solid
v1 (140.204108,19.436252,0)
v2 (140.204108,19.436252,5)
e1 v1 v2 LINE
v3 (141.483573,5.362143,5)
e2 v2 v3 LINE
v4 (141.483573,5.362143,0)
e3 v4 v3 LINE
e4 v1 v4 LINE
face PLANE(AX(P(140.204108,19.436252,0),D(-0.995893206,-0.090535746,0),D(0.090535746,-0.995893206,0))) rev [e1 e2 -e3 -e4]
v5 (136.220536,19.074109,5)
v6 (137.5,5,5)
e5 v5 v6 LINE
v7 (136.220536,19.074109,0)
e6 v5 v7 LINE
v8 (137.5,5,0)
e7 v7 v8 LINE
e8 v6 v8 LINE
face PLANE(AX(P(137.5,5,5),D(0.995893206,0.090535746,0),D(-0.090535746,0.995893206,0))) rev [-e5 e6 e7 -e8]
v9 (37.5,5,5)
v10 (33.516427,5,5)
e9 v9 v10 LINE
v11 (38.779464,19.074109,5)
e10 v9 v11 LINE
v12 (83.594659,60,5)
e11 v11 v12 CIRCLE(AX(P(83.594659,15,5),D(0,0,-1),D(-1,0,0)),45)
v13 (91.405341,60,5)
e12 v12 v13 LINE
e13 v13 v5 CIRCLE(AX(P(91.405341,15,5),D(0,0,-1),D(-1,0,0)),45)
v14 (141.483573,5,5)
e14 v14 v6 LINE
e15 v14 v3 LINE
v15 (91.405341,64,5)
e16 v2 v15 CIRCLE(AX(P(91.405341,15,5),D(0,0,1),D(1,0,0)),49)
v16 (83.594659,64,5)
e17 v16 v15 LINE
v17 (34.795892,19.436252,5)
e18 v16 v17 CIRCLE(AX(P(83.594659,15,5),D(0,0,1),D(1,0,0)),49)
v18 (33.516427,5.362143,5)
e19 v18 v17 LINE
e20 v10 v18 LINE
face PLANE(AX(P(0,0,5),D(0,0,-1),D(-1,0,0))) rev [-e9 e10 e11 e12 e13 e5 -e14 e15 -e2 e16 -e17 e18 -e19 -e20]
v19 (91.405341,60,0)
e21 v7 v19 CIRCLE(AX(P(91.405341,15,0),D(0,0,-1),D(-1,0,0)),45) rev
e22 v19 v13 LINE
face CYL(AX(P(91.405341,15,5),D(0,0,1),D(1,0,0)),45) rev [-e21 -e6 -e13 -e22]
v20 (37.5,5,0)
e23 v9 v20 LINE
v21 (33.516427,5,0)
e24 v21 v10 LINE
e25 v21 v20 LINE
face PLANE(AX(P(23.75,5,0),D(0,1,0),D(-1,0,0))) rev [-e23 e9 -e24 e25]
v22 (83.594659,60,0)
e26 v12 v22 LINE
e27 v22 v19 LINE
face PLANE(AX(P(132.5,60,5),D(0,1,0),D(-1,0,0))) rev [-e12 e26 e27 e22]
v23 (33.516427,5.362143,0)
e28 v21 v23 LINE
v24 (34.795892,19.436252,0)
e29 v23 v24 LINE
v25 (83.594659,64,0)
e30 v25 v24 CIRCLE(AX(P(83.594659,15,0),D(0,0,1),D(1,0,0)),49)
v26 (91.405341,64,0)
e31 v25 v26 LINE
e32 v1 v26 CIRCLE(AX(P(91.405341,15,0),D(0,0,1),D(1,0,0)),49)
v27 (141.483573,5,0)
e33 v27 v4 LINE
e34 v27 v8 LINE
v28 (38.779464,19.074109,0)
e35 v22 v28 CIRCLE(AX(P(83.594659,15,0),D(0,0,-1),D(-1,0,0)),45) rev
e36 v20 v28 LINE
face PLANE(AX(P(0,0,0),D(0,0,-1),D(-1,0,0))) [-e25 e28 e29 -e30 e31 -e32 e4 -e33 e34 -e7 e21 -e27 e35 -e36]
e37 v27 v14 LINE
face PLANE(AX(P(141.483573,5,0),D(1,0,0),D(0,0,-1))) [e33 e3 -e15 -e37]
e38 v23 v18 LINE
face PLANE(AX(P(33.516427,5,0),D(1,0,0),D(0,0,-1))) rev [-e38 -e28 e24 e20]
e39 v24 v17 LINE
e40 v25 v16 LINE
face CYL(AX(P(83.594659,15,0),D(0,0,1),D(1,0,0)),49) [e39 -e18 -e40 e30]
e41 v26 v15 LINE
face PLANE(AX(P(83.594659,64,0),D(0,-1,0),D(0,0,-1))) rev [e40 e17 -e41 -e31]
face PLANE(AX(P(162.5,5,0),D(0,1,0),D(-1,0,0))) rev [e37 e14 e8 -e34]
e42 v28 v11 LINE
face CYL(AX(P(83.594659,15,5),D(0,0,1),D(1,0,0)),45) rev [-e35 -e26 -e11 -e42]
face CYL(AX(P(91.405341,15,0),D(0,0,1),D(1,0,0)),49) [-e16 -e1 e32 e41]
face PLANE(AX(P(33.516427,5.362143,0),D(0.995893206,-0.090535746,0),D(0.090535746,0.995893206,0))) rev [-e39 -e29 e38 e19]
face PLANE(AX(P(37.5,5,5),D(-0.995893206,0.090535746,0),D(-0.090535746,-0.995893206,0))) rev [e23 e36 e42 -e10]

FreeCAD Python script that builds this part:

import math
import FreeCAD as App
import Part
import Sketcher
from FreeCAD import Vector
Q = App.Units.Quantity


def edges_at(feature, points):
    """Names of the edges that pass closest to the given points."""
    edges = feature.Shape.Edges
    near = lambda p: min(range(len(edges)), key=lambda i: edges[i].distToShape(Part.Vertex(*p))[0])
    return sorted({f"Edge{near(p) + 1}" for p in points})

doc = App.newDocument("Part")
params = doc.addObject("Spreadsheet::Sheet", "Params")
for row, (alias, value) in enumerate([
    ("sketch1_width", "90 mm"),
    ("sketch1_width2", "80 mm"),
    ("sketch1_width3", "230 mm"),
    ("sketch1_height", "85 mm"),
    ("sketch1_height2", "5 mm"),
    ("pad1_length", "5 mm"),
    ("sketch2_width", "25 mm"),
    ("sketch2_height", "3 mm"),
    ("sketch2_width2", "27.5 mm"),
    ("sketch3_diameter", "2 mm"),
    ("sketch4_diameter", "2 mm"),
    ("sketch5_width", "3 mm"),
    ("sketch5_height", "20 mm"),
    ("sketch6_height", "5 mm"),
    ("sketch7_height", "5 mm"),
    ("sketch7_width", "13.75 mm"),
    ("sketch8_length", "3 mm"),
    ("sketch8_length2", "56 mm"),
    ("sketch9_width", "10 mm"),
    ("sketch10_width", "5 mm"),
    ("sketch10_height", "15 mm"),
    ("pad2_length", "3 mm"),
    ("sketch11_length", "5 mm"),
    ("sketch11_length2", "15 mm"),
    ("fillet_radius", "45 mm"),
    ("sketch12_radius", "49 mm"),
    ("sketch12_width", "30 mm"),
    ("sketch12_width2", "100 mm"),
    ("sketch12_width3", "10 mm"),
    ("sketch12_width4", "175 mm"),
], start=1):
    params.set(f"A{row}", alias)
    params.set(f"B{row}", "=" + value)
    params.setAlias(f"B{row}", alias)

body = doc.addObject("PartDesign::Body", "Body")

sketch1 = doc.addObject("Sketcher::SketchObject", "Sketch")
body.addObject(sketch1)
sketch1.AttachmentSupport = (doc.XY_Plane, [""])
sketch1.MapMode = "FlatFace"
sketch1.addGeometry([
    Part.LineSegment(Vector(0, 85, 0), Vector(0, 0, 0)),
    Part.LineSegment(Vector(0, 0, 0), Vector(38, 0, 0)),
    Part.LineSegment(Vector(38, 0, 0), Vector(38, 5, 0)),
    Part.LineSegment(Vector(38, 5, 0), Vector(42, 60, 0)),
    Part.LineSegment(Vector(42, 60, 0), Vector(132, 60, 0)),
    Part.LineSegment(Vector(132, 60, 0), Vector(138, 5, 0)),
    Part.LineSegment(Vector(138, 5, 0), Vector(138, 0, 0)),
    Part.LineSegment(Vector(138, 0, 0), Vector(218, 0, 0)),
    Part.LineSegment(Vector(218, 0, 0), Vector(218, 5, 0)),
    Part.LineSegment(Vector(218, 5, 0), Vector(222, 60, 0)),
    Part.LineSegment(Vector(222, 60, 0), Vector(312, 60, 0)),
    Part.LineSegment(Vector(312, 60, 0), Vector(318, 5, 0)),
    Part.LineSegment(Vector(318, 5, 0), Vector(318, 0, 0)),
    Part.LineSegment(Vector(318, 0, 0), Vector(355, 0, 0)),
    Part.LineSegment(Vector(355, 0, 0), Vector(355, 175, 0)),
    Part.LineSegment(Vector(355, 175, 0), Vector(125, 175, 0)),
    Part.LineSegment(Vector(125, 175, 0), Vector(110, 105, 0)),
    Part.LineSegment(Vector(110, 105, 0), Vector(0, 85, 0)),
], False)
sketch1.addConstraint([
    Sketcher.Constraint("Coincident", 0, 2, 1, 1),
    Sketcher.Constraint("Coincident", 1, 2, 2, 1),
    Sketcher.Constraint("Coincident", 2, 2, 3, 1),
    Sketcher.Constraint("Coincident", 3, 2, 4, 1),
    Sketcher.Constraint("Coincident", 4, 2, 5, 1),
    Sketcher.Constraint("Coincident", 5, 2, 6, 1),
    Sketcher.Constraint("Coincident", 6, 2, 7, 1),
    Sketcher.Constraint("Coincident", 7, 2, 8, 1),
    Sketcher.Constraint("Coincident", 8, 2, 9, 1),
    Sketcher.Constraint("Coincident", 9, 2, 10, 1),
    Sketcher.Constraint("Coincident", 10, 2, 11, 1),
    Sketcher.Constraint("Coincident", 11, 2, 12, 1),
    Sketcher.Constraint("Coincident", 12, 2, 13, 1),
    Sketcher.Constraint("Coincident", 13, 2, 14, 1),
    Sketcher.Constraint("Coincident", 14, 2, 15, 1),
    Sketcher.Constraint("Coincident", 15, 2, 16, 1),
    Sketcher.Constraint("Coincident", 16, 2, 17, 1),
    Sketcher.Constraint("Coincident", 17, 2, 0, 1),
    Sketcher.Constraint("Vertical", 0),
    Sketcher.Constraint("Horizontal", 1),
    Sketcher.Constraint("Vertical", 2),
    Sketcher.Constraint("Horizontal", 4),
    Sketcher.Constraint("Vertical", 6),
    Sketcher.Constraint("Horizontal", 7),
    Sketcher.Constraint("Vertical", 8),
    Sketcher.Constraint("Horizontal", 10),
    Sketcher.Constraint("Vertical", 12),
    Sketcher.Constraint("Horizontal", 13),
    Sketcher.Constraint("Vertical", 14),
    Sketcher.Constraint("Horizontal", 15),
    Sketcher.Constraint("Coincident", 0, 2, -1, 1),
    Sketcher.Constraint("PointOnObject", 6, 2, -1),
    Sketcher.Constraint("PointOnObject", 12, 2, -1),
    Sketcher.Constraint("Parallel", 3, 9),
    Sketcher.Constraint("Parallel", 5, 11),
    Sketcher.Constraint("Horizontal", 2, 2, 5, 2),
    Sketcher.Constraint("Horizontal", 5, 2, 8, 2),
    Sketcher.Constraint("Horizontal", 4, 2, 9, 2),
    Sketcher.Constraint("Horizontal", 8, 2, 11, 2),
    Sketcher.Constraint("Equal", 4, 10),
    Sketcher.Constraint("Equal", 1, 13),
    Sketcher.Constraint("Equal", 3, 5),
    Sketcher.Constraint("DistanceX", 4, 1, 4, 2, Q("90 mm")),
    Sketcher.Constraint("DistanceX", 7, 1, 7, 2, Q("80 mm")),
    Sketcher.Constraint("DistanceX", 15, 2, 15, 1, Q("230 mm")),
    Sketcher.Constraint("DistanceY", 0, 2, 0, 1, Q("85 mm")),
    Sketcher.Constraint("DistanceY", 2, 1, 2, 2, Q("5 mm")),
    Sketcher.Constraint("DistanceY", 14, 1, 14, 2, Q("175 mm")),
    Sketcher.Constraint("DistanceX", 1, 1, 1, 2, Q("37.5 mm")),
    Sketcher.Constraint("DistanceY", -1, 1, 3, 2, Q("60 mm")),
    Sketcher.Constraint("DistanceX", -1, 1, 13, 2, Q("355 mm")),
    Sketcher.Constraint("DistanceX", -1, 1, 16, 2, Q("110 mm")),
    Sketcher.Constraint("DistanceY", -1, 1, 16, 2, Q("105 mm")),
])
sketch1.setExpression("Constraints[42]", "Params.sketch1_width")
sketch1.setExpression("Constraints[43]", "Params.sketch1_width2")
sketch1.setExpression("Constraints[44]", "Params.sketch1_width3")
sketch1.setExpression("Constraints[45]", "Params.sketch1_height")
sketch1.setExpression("Constraints[46]", "Params.sketch1_height2")
pad1 = doc.addObject("PartDesign::Pad", "Pad")
body.addObject(pad1)
pad1.Profile = sketch1
pad1.setExpression("Length", "Params.pad1_length")

sketch2 = doc.addObject("Sketcher::SketchObject", "Sketch001")
body.addObject(sketch2)
sketch2.AttachmentSupport = (doc.XY_Plane, [""])
sketch2.MapMode = "FlatFace"
sketch2.AttachmentOffset = App.Placement(Vector(0, 0, 5), App.Rotation())
sketch2.addGeometry([
    Part.LineSegment(Vector(167.5, 175, 0), Vector(167.5, 172, 0)),
    Part.LineSegment(Vector(167.5, 172, 0), Vector(192.5, 172, 0)),
    Part.LineSegment(Vector(192.5, 172, 0), Vector(192.5, 175, 0)),
    Part.LineSegment(Vector(192.5, 175, 0), Vector(167.5, 175, 0)),
    Part.LineSegment(Vector(327.5, 175, 0), Vector(327.5, 172, 0)),
    Part.LineSegment(Vector(327.5, 172, 0), Vector(355, 172, 0)),
    Part.LineSegment(Vector(355, 172, 0), Vector(355, 175, 0)),
    Part.LineSegment(Vector(355, 175, 0), Vector(327.5, 175, 0)),
    Part.LineSegment(Vector(207.5, 175, 0), Vector(207.5, 172, 0)),
    Part.LineSegment(Vector(207.5, 172, 0), Vector(232.5, 172, 0)),
    Part.LineSegment(Vector(232.5, 172, 0), Vector(232.5, 175, 0)),
    Part.LineSegment(Vector(232.5, 175, 0), Vector(207.5, 175, 0)),
    Part.LineSegment(Vector(247.5, 175, 0), Vector(247.5, 172, 0)),
    Part.LineSegment(Vector(247.5, 172, 0), Vector(272.5, 172, 0)),
    Part.LineSegment(Vector(272.5, 172, 0), Vector(272.5, 175, 0)),
    Part.LineSegment(Vector(272.5, 175, 0), Vector(247.5, 175, 0)),
    Part.LineSegment(Vector(287.5, 175, 0), Vector(287.5, 172, 0)),
    Part.LineSegment(Vector(287.5, 172, 0), Vector(312.5, 172, 0)),
    Part.LineSegment(Vector(312.5, 172, 0), Vector(312.5, 175, 0)),
    Part.LineSegment(Vector(312.5, 175, 0), Vector(287.5, 175, 0)),
    Part.LineSegment(Vector(152.5, 172, 0), Vector(152.5, 175, 0)),
    Part.LineSegment(Vector(152.5, 175, 0), Vector(125, 175, 0)),
    Part.LineSegment(Vector(125, 175, 0), Vector(124.4, 172, 0)),
    Part.LineSegment(Vector(124.4, 172, 0), Vector(152.5, 172, 0)),
], False)
sketch2.addConstraint([
    Sketcher.Constraint("Coincident", 0, 2, 1, 1),
    Sketcher.Constraint("Coincident", 1, 2, 2, 1),
    Sketcher.Constraint("Coincident", 2, 2, 3, 1),
    Sketcher.Constraint("Coincident", 3, 2, 0, 1),
    Sketcher.Constraint("Coincident", 4, 2, 5, 1),
    Sketcher.Constraint("Coincident", 5, 2, 6, 1),
    Sketcher.Constraint("Coincident", 6, 2, 7, 1),
    Sketcher.Constraint("Coincident", 7, 2, 4, 1),
    Sketcher.Constraint("Coincident", 8, 2, 9, 1),
    Sketcher.Constraint("Coincident", 9, 2, 10, 1),
    Sketcher.Constraint("Coincident", 10, 2, 11, 1),
    Sketcher.Constraint("Coincident", 11, 2, 8, 1),
    Sketcher.Constraint("Coincident", 12, 2, 13, 1),
    Sketcher.Constraint("Coincident", 13, 2, 14, 1),
    Sketcher.Constraint("Coincident", 14, 2, 15, 1),
    Sketcher.Constraint("Coincident", 15, 2, 12, 1),
    Sketcher.Constraint("Coincident", 16, 2, 17, 1),
    Sketcher.Constraint("Coincident", 17, 2, 18, 1),
    Sketcher.Constraint("Coincident", 18, 2, 19, 1),
    Sketcher.Constraint("Coincident", 19, 2, 16, 1),
    Sketcher.Constraint("Coincident", 20, 2, 21, 1),
    Sketcher.Constraint("Coincident", 21, 2, 22, 1),
    Sketcher.Constraint("Coincident", 22, 2, 23, 1),
    Sketcher.Constraint("Coincident", 23, 2, 20, 1),
    Sketcher.Constraint("Vertical", 0),
    Sketcher.Constraint("Horizontal", 1),
    Sketcher.Constraint("Vertical", 2),
    Sketcher.Constraint("Horizontal", 3),
    Sketcher.Constraint("Vertical", 4),
    Sketcher.Constraint("Horizontal", 5),
    Sketcher.Constraint("Vertical", 6),
    Sketcher.Constraint("Horizontal", 7),
    Sketcher.Constraint("Vertical", 8),
    Sketcher.Constraint("Horizontal", 9),
    Sketcher.Constraint("Vertical", 10),
    Sketcher.Constraint("Horizontal", 11),
    Sketcher.Constraint("Vertical", 12),
    Sketcher.Constraint("Horizontal", 13),
    Sketcher.Constraint("Vertical", 14),
    Sketcher.Constraint("Horizontal", 15),
    Sketcher.Constraint("Vertical", 16),
    Sketcher.Constraint("Horizontal", 17),
    Sketcher.Constraint("Vertical", 18),
    Sketcher.Constraint("Horizontal", 19),
    Sketcher.Constraint("Vertical", 20),
    Sketcher.Constraint("Horizontal", 21),
    Sketcher.Constraint("Horizontal", 23),
    Sketcher.Constraint("Horizontal", 1, 2, 4, 2),
    Sketcher.Constraint("Horizontal", 3, 2, 6, 2),
    Sketcher.Constraint("Horizontal", 5, 2, 8, 2),
    Sketcher.Constraint("Horizontal", 7, 2, 10, 2),
    Sketcher.Constraint("Horizontal", 9, 2, 12, 2),
    Sketcher.Constraint("Horizontal", 11, 2, 14, 2),
    Sketcher.Constraint("Horizontal", 13, 2, 16, 2),
    Sketcher.Constraint("Horizontal", 15, 2, 18, 2),
    Sketcher.Constraint("Horizontal", 19, 2, 20, 2),
    Sketcher.Constraint("Horizontal", 17, 2, 22, 2),
    Sketcher.Constraint("Equal", 3, 9),
    Sketcher.Constraint("Equal", 11, 13),
    Sketcher.Constraint("Equal", 15, 17),
    Sketcher.Constraint("Equal", 7, 21),
    Sketcher.Constraint("DistanceX", 1, 1, 1, 2, Q("25 mm")),
    Sketcher.Constraint("DistanceY", 0, 2, 0, 1, Q("3 mm")),
    Sketcher.Constraint("DistanceX", 5, 1, 5, 2, Q("27.5 mm")),
    Sketcher.Constraint("DistanceY", -1, 1, 0, 2, Q("172 mm")),
    Sketcher.Constraint("DistanceX", -1, 1, 5, 2, Q("355 mm")),
    Sketcher.Constraint("DistanceX", -1, 1, 21, 2, Q("125 mm")),
    Sketcher.Constraint("DistanceX", 1, 2, 4, 2, Q("135 mm")),
    Sketcher.Constraint("DistanceX", 1, 2, 8, 2, Q("15 mm")),
    Sketcher.Constraint("DistanceX", 9, 2, 12, 2, Q("15 mm")),
    Sketcher.Constraint("DistanceX", 13, 2, 16, 2, Q("15 mm")),
    Sketcher.Constraint("DistanceX", 23, 1, 23, 2, Q("28.142857 mm")),
])
sketch2.setExpression("Constraints[61]", "Params.sketch2_width")
sketch2.setExpression("Constraints[62]", "Params.sketch2_height")
sketch2.setExpression("Constraints[63]", "Params.sketch2_width2")
pocket1 = doc.addObject("PartDesign::Pocket", "Pocket")
body.addObject(pocket1)
pocket1.Profile = sketch2
pocket1.Type = "ThroughAll"

sketch3 = doc.addObject("Sketcher::SketchObject", "Sketch002")
body.addObject(sketch3)
sketch3.AttachmentSupport = (doc.XY_Plane, [""])
sketch3.MapMode = "FlatFace"
sketch3.AttachmentOffset = App.Placement(Vector(0, 0, 5), App.Rotation())
sketch3.addGeometry([
    Part.Circle(Vector(200, 173, 0), Vector(0, 0, 1), 1),
    Part.Circle(Vector(240, 173, 0), Vector(0, 0, 1), 1),
    Part.Circle(Vector(280, 173, 0), Vector(0, 0, 1), 1),
    Part.Circle(Vector(320, 173, 0), Vector(0, 0, 1), 1),
    Part.Circle(Vector(160, 173, 0), Vector(0, 0, 1), 1),
], False)
sketch3.addConstraint([
    Sketcher.Constraint("Equal", 0, 1),
    Sketcher.Constraint("Equal", 1, 2),
    Sketcher.Constraint("Equal", 2, 3),
    Sketcher.Constraint("Equal", 3, 4),
    Sketcher.Constraint("Horizontal", 0, 3, 1, 3),
    Sketcher.Constraint("Horizontal", 1, 3, 2, 3),
    Sketcher.Constraint("Horizontal", 2, 3, 3, 3),
    Sketcher.Constraint("Horizontal", 3, 3, 4, 3),
    Sketcher.Constraint("Diameter", 0, Q("2 mm")),
    Sketcher.Constraint("DistanceX", -1, 1, 0, 3, Q("200 mm")),
    Sketcher.Constraint("DistanceY", -1, 1, 0, 3, Q("173 mm")),
    Sketcher.Constraint("DistanceX", -1, 1, 1, 3, Q("240 mm")),
    Sketcher.Constraint("DistanceX", -1, 1, 2, 3, Q("280 mm")),
    Sketcher.Constraint("DistanceX", -1, 1, 3, 3, Q("320 mm")),
    Sketcher.Constraint("DistanceX", -1, 1, 4, 3, Q("160 mm")),
])
sketch3.setExpression("Constraints[8]", "Params.sketch3_diameter")
pocket2 = doc.addObject("PartDesign::Pocket", "Pocket001")
body.addObject(pocket2)
pocket2.Profile = sketch3
pocket2.Type = "ThroughAll"

sketch4 = doc.addObject("Sketcher::SketchObject", "Sketch003")
body.addObject(sketch4)
sketch4.AttachmentSupport = (doc.XY_Plane, [""])
sketch4.MapMode = "FlatFace"
sketch4.AttachmentOffset = App.Placement(Vector(0, 0, 5), App.Rotation())
sketch4.addGeometry([
    Part.Circle(Vector(353, 162, 0), Vector(0, 0, 1), 1),
    Part.Circle(Vector(353, 122, 0), Vector(0, 0, 1), 1),
    Part.Circle(Vector(353, 82, 0), Vector(0, 0, 1), 1),
    Part.Circle(Vector(353, 42, 0), Vector(0, 0, 1), 1),
], False)
sketch4.addConstraint([
    Sketcher.Constraint("Equal", 0, 1),
    Sketcher.Constraint("Equal", 1, 2),
    Sketcher.Constraint("Equal", 2, 3),
    Sketcher.Constraint("Vertical", 0, 3, 1, 3),
    Sketcher.Constraint("Vertical", 1, 3, 2, 3),
    Sketcher.Constraint("Vertical", 2, 3, 3, 3),
    Sketcher.Constraint("Diameter", 0, Q("2 mm")),
    Sketcher.Constraint("DistanceX", -1, 1, 0, 3, Q("353 mm")),
    Sketcher.Constraint("DistanceY", -1, 1, 0, 3, Q("162 mm")),
    Sketcher.Constraint("DistanceY", -1, 1, 1, 3, Q("122 mm")),
    Sketcher.Constraint("DistanceY", -1, 1, 2, 3, Q("82 mm")),
    Sketcher.Constraint("DistanceY", -1, 1, 3, 3, Q("42 mm")),
])
sketch4.setExpression("Constraints[6]", "Params.sketch4_diameter")
pocket3 = doc.addObject("PartDesign::Pocket", "Pocket002")
body.addObject(pocket3)
pocket3.Profile = sketch4
pocket3.Type = "ThroughAll"

sketch5 = doc.addObject("Sketcher::SketchObject", "Sketch004")
body.addObject(sketch5)
sketch5.AttachmentSupport = (doc.XY_Plane, [""])
sketch5.MapMode = "FlatFace"
sketch5.AttachmentOffset = App.Placement(Vector(0, 0, 5), App.Rotation())
sketch5.addGeometry([
    Part.LineSegment(Vector(352, 152, 0), Vector(352, 132, 0)),
    Part.LineSegment(Vector(352, 132, 0), Vector(355, 132, 0)),
    Part.LineSegment(Vector(355, 132, 0), Vector(355, 152, 0)),
    Part.LineSegment(Vector(355, 152, 0), Vector(352, 152, 0)),
    Part.LineSegment(Vector(352, 112, 0), Vector(352, 92, 0)),
    Part.LineSegment(Vector(352, 92, 0), Vector(355, 92, 0)),
    Part.LineSegment(Vector(355, 92, 0), Vector(355, 112, 0)),
    Part.LineSegment(Vector(355, 112, 0), Vector(352, 112, 0)),
    Part.LineSegment(Vector(352, 72, 0), Vector(352, 52, 0)),
    Part.LineSegment(Vector(352, 52, 0), Vector(355, 52, 0)),
    Part.LineSegment(Vector(355, 52, 0), Vector(355, 72, 0)),
    Part.LineSegment(Vector(355, 72, 0), Vector(352, 72, 0)),
    Part.LineSegment(Vector(352, 32, 0), Vector(352, 12, 0)),
    Part.LineSegment(Vector(352, 12, 0), Vector(355, 12, 0)),
    Part.LineSegment(Vector(355, 12, 0), Vector(355, 32, 0)),
    Part.LineSegment(Vector(355, 32, 0), Vector(352, 32, 0)),
], False)
sketch5.addConstraint([
    Sketcher.Constraint("Coincident", 0, 2, 1, 1),
    Sketcher.Constraint("Coincident", 1, 2, 2, 1),
    Sketcher.Constraint("Coincident", 2, 2, 3, 1),
    Sketcher.Constraint("Coincident", 3, 2, 0, 1),
    Sketcher.Constraint("Coincident", 4, 2, 5, 1),
    Sketcher.Constraint("Coincident", 5, 2, 6, 1),
    Sketcher.Constraint("Coincident", 6, 2, 7, 1),
    Sketcher.Constraint("Coincident", 7, 2, 4, 1),
    Sketcher.Constraint("Coincident", 8, 2, 9, 1),
    Sketcher.Constraint("Coincident", 9, 2, 10, 1),
    Sketcher.Constraint("Coincident", 10, 2, 11, 1),
    Sketcher.Constraint("Coincident", 11, 2, 8, 1),
    Sketcher.Constraint("Coincident", 12, 2, 13, 1),
    Sketcher.Constraint("Coincident", 13, 2, 14, 1),
    Sketcher.Constraint("Coincident", 14, 2, 15, 1),
    Sketcher.Constraint("Coincident", 15, 2, 12, 1),
    Sketcher.Constraint("Vertical", 0),
    Sketcher.Constraint("Horizontal", 1),
    Sketcher.Constraint("Vertical", 2),
    Sketcher.Constraint("Horizontal", 3),
    Sketcher.Constraint("Vertical", 4),
    Sketcher.Constraint("Horizontal", 5),
    Sketcher.Constraint("Vertical", 6),
    Sketcher.Constraint("Horizontal", 7),
    Sketcher.Constraint("Vertical", 8),
    Sketcher.Constraint("Horizontal", 9),
    Sketcher.Constraint("Vertical", 10),
    Sketcher.Constraint("Horizontal", 11),
    Sketcher.Constraint("Vertical", 12),
    Sketcher.Constraint("Horizontal", 13),
    Sketcher.Constraint("Vertical", 14),
    Sketcher.Constraint("Horizontal", 15),
    Sketcher.Constraint("Vertical", 3, 2, 4, 2),
    Sketcher.Constraint("Vertical", 2, 2, 5, 2),
    Sketcher.Constraint("Vertical", 7, 2, 8, 2),
    Sketcher.Constraint("Vertical", 6, 2, 9, 2),
    Sketcher.Constraint("Vertical", 11, 2, 12, 2),
    Sketcher.Constraint("Vertical", 10, 2, 13, 2),
    Sketcher.Constraint("Equal", 2, 4),
    Sketcher.Constraint("Equal", 6, 8),
    Sketcher.Constraint("Equal", 10, 12),
    Sketcher.Constraint("DistanceX", 1, 1, 1, 2, Q("3 mm")),
    Sketcher.Constraint("DistanceY", 0, 2, 0, 1, Q("20 mm")),
    Sketcher.Constraint("DistanceX", -1, 1, 0, 2, Q("352 mm")),
    Sketcher.Constraint("DistanceY", -1, 1, 0, 2, Q("132 mm")),
    Sketcher.Constraint("DistanceY", -1, 1, 4, 2, Q("92 mm")),
    Sketcher.Constraint("DistanceY", -1, 1, 8, 2, Q("52 mm")),
    Sketcher.Constraint("DistanceY", -1, 1, 12, 2, Q("12 mm")),
])
sketch5.setExpression("Constraints[41]", "Params.sketch5_width")
sketch5.setExpression("Constraints[42]", "Params.sketch5_height")
pocket4 = doc.addObject("PartDesign::Pocket", "Pocket003")
body.addObject(pocket4)
pocket4.Profile = sketch5
pocket4.Type = "ThroughAll"

sketch6 = doc.addObject("Sketcher::SketchObject", "Sketch005")
body.addObject(sketch6)
sketch6.AttachmentSupport = (doc.XY_Plane, [""])
sketch6.MapMode = "FlatFace"
sketch6.AttachmentOffset = App.Placement(Vector(0, 0, 5), App.Rotation())
sketch6.addGeometry([
    Part.LineSegment(Vector(110, 5, 0), Vector(110, 0, 0)),
    Part.LineSegment(Vector(110, 0, 0), Vector(162, 0, 0)),
    Part.LineSegment(Vector(162, 0, 0), Vector(162, 5, 0)),
    Part.LineSegment(Vector(162, 5, 0), Vector(110, 5, 0)),
    Part.LineSegment(Vector(192, 5, 0), Vector(192, 0, 0)),
    Part.LineSegment(Vector(192, 0, 0), Vector(243, 0, 0)),
    Part.LineSegment(Vector(243, 0, 0), Vector(243, 5, 0)),
    Part.LineSegment(Vector(243, 5, 0), Vector(192, 5, 0)),
], False)
sketch6.addConstraint([
    Sketcher.Constraint("Coincident", 0, 2, 1, 1),
    Sketcher.Constraint("Coincident", 1, 2, 2, 1),
    Sketcher.Constraint("Coincident", 2, 2, 3, 1),
    Sketcher.Constraint("Coincident", 3, 2, 0, 1),
    Sketcher.Constraint("Coincident", 4, 2, 5, 1),
    Sketcher.Constraint("Coincident", 5, 2, 6, 1),
    Sketcher.Constraint("Coincident", 6, 2, 7, 1),
    Sketcher.Constraint("Coincident", 7, 2, 4, 1),
    Sketcher.Constraint("Vertical", 0),
    Sketcher.Constraint("Horizontal", 1),
    Sketcher.Constraint("Vertical", 2),
    Sketcher.Constraint("Horizontal", 3),
    Sketcher.Constraint("Vertical", 4),
    Sketcher.Constraint("Horizontal", 5),
    Sketcher.Constraint("Vertical", 6),
    Sketcher.Constraint("Horizontal", 7),
    Sketcher.Constraint("PointOnObject", 0, 2, -1),
    Sketcher.Constraint("PointOnObject", 4, 2, -1),
    Sketcher.Constraint("Horizontal", 3, 2, 6, 2),
    Sketcher.Constraint("DistanceY", 0, 2, 0, 1, Q("5 mm")),
    Sketcher.Constraint("DistanceX", 1, 2, 4, 2, Q("30 mm")),
    Sketcher.Constraint("DistanceX", -1, 1, 1, 2, Q("162.5 mm")),
    Sketcher.Constraint("DistanceX", 5, 1, 5, 2, Q("50.247879 mm")),
    Sketcher.Constraint("DistanceX", 1, 1, 1, 2, Q("52.963955 mm")),
])
sketch6.setExpression("Constraints[19]", "Params.sketch6_height")
pocket5 = doc.addObject("PartDesign::Pocket", "Pocket004")
body.addObject(pocket5)
pocket5.Profile = sketch6
pocket5.Type = "ThroughAll"

sketch7 = doc.addObject("Sketcher::SketchObject", "Sketch006")
body.addObject(sketch7)
sketch7.AttachmentSupport = (doc.XY_Plane, [""])
sketch7.MapMode = "FlatFace"
sketch7.AttachmentOffset = App.Placement(Vector(0, 0, 5), App.Rotation())
sketch7.addGeometry([
    Part.LineSegment(Vector(-11, 5, 0), Vector(-11, 0, 0)),
    Part.LineSegment(Vector(-11, 0, 0), Vector(14, 0, 0)),
    Part.LineSegment(Vector(14, 0, 0), Vector(14, 5, 0)),
    Part.LineSegment(Vector(14, 5, 0), Vector(-11, 5, 0)),
    Part.LineSegment(Vector(24, 5, 0), Vector(24, 0, 0)),
    Part.LineSegment(Vector(24, 0, 0), Vector(49, 0, 0)),
    Part.LineSegment(Vector(49, 0, 0), Vector(49, 5, 0)),
    Part.LineSegment(Vector(49, 5, 0), Vector(24, 5, 0)),
    Part.LineSegment(Vector(301, 5, 0), Vector(301, 0, 0)),
    Part.LineSegment(Vector(301, 0, 0), Vector(331, 0, 0)),
    Part.LineSegment(Vector(331, 0, 0), Vector(331, 5, 0)),
    Part.LineSegment(Vector(331, 5, 0), Vector(301, 5, 0)),
    Part.LineSegment(Vector(341, 5, 0), Vector(341, 0, 0)),
    Part.LineSegment(Vector(341, 0, 0), Vector(355, 0, 0)),
    Part.LineSegment(Vector(355, 0, 0), Vector(355, 5, 0)),
    Part.LineSegment(Vector(355, 5, 0), Vector(341, 5, 0)),
], False)
sketch7.addConstraint([
    Sketcher.Constraint("Coincident", 0, 2, 1, 1),
    Sketcher.Constraint("Coincident", 1, 2, 2, 1),
    Sketcher.Constraint("Coincident", 2, 2, 3, 1),
    Sketcher.Constraint("Coincident", 3, 2, 0, 1),
    Sketcher.Constraint("Coincident", 4, 2, 5, 1),
    Sketcher.Constraint("Coincident", 5, 2, 6, 1),
    Sketcher.Constraint("Coincident", 6, 2, 7, 1),
    Sketcher.Constraint("Coincident", 7, 2, 4, 1),
    Sketcher.Constraint("Coincident", 8, 2, 9, 1),
    Sketcher.Constraint("Coincident", 9, 2, 10, 1),
    Sketcher.Constraint("Coincident", 10, 2, 11, 1),
    Sketcher.Constraint("Coincident", 11, 2, 8, 1),
    Sketcher.Constraint("Coincident", 12, 2, 13, 1),
    Sketcher.Constraint("Coincident", 13, 2, 14, 1),
    Sketcher.Constraint("Coincident", 14, 2, 15, 1),
    Sketcher.Constraint("Coincident", 15, 2, 12, 1),
    Sketcher.Constraint("Vertical", 0),
    Sketcher.Constraint("Horizontal", 1),
    Sketcher.Constraint("Vertical", 2),
    Sketcher.Constraint("Horizontal", 3),
    Sketcher.Constraint("Vertical", 4),
    Sketcher.Constraint("Horizontal", 5),
    Sketcher.Constraint("Vertical", 6),
    Sketcher.Constraint("Horizontal", 7),
    Sketcher.Constraint("Vertical", 8),
    Sketcher.Constraint("Horizontal", 9),
    Sketcher.Constraint("Vertical", 10),
    Sketcher.Constraint("Horizontal", 11),
    Sketcher.Constraint("Vertical", 12),
    Sketcher.Constraint("Horizontal", 13),
    Sketcher.Constraint("Vertical", 14),
    Sketcher.Constraint("Horizontal", 15),
    Sketcher.Constraint("PointOnObject", 0, 2, -1),
    Sketcher.Constraint("PointOnObject", 4, 2, -1),
    Sketcher.Constraint("PointOnObject", 8, 2, -1),
    Sketcher.Constraint("PointOnObject", 12, 2, -1),
    Sketcher.Constraint("Horizontal", 3, 2, 6, 2),
    Sketcher.Constraint("Horizontal", 7, 2, 10, 2),
    Sketcher.Constraint("Horizontal", 11, 2, 14, 2),
    Sketcher.Constraint("DistanceY", 0, 2, 0, 1, Q("5 mm")),
    Sketcher.Constraint("DistanceX", -1, 1, 13, 2, Q("355 mm")),
    Sketcher.Constraint("DistanceX", 1, 2, 4, 2, Q("10 mm")),
    Sketcher.Constraint("DistanceX", 9, 2, 12, 2, Q("10 mm")),
    Sketcher.Constraint("DistanceX", 13, 1, 13, 2, Q("13.75 mm")),
    Sketcher.Constraint("DistanceX", 4, 2, 9, 2, Q("307.5 mm")),
    Sketcher.Constraint("DistanceX", 1, 1, 1, 2, Q("24.499879 mm")),
    Sketcher.Constraint("DistanceX", 5, 1, 5, 2, Q("25.63433 mm")),
    Sketcher.Constraint("DistanceX", 9, 1, 9, 2, Q("30.655681 mm")),
])
sketch7.setExpression("Constraints[39]", "Params.sketch7_height")
sketch7.setExpression("Constraints[43]", "Params.sketch7_width")
pocket6 = doc.addObject("PartDesign::Pocket", "Pocket005")
body.addObject(pocket6)
pocket6.Profile = sketch7
pocket6.Type = "ThroughAll"

sketch8 = doc.addObject("Sketcher::SketchObject", "Sketch007")
body.addObject(sketch8)
sketch8.AttachmentSupport = (doc.XY_Plane, [""])
sketch8.MapMode = "FlatFace"
sketch8.AttachmentOffset = App.Placement(Vector(0, 0, 5), App.Rotation())
sketch8.addGeometry([
    Part.LineSegment(Vector(111.3, 111.3, 0), Vector(114.3, 110.6, 0)),
    Part.LineSegment(Vector(114.3, 110.6, 0), Vector(126, 165.4, 0)),
    Part.LineSegment(Vector(126, 165.4, 0), Vector(123.1, 166, 0)),
    Part.LineSegment(Vector(123.1, 166, 0), Vector(111.3, 111.3, 0)),
], False)
sketch8.addConstraint([
    Sketcher.Constraint("Coincident", 0, 2, 1, 1),
    Sketcher.Constraint("Coincident", 1, 2, 2, 1),
    Sketcher.Constraint("Coincident", 2, 2, 3, 1),
    Sketcher.Constraint("Coincident", 3, 2, 0, 1),
    Sketcher.Constraint("Perpendicular", 0, 1),
    Sketcher.Constraint("Perpendicular", 1, 2),
    Sketcher.Constraint("Perpendicular", 2, 3),
    Sketcher.Constraint("Distance", 0, Q("3 mm")),
    Sketcher.Constraint("Distance", 1, Q("56 mm")),
    Sketcher.Constraint("DistanceX", -1, 1, 1, 2, Q("126.008782 mm")),
    Sketcher.Constraint("DistanceY", -1, 1, 3, 2, Q("111.26148 mm")),
    Sketcher.Constraint("DistanceX", 0, 2, 1, 2, Q("11.733629 mm")),
])
sketch8.setExpression("Constraints[7]", "Params.sketch8_length")
sketch8.setExpression("Constraints[8]", "Params.sketch8_length2")
pocket7 = doc.addObject("PartDesign::Pocket", "Pocket006")
body.addObject(pocket7)
pocket7.Profile = sketch8
pocket7.Type = "ThroughAll"

sketch9 = doc.addObject("Sketcher::SketchObject", "Sketch008")
body.addObject(sketch9)
sketch9.AttachmentSupport = (doc.XY_Plane, [""])
sketch9.MapMode = "FlatFace"
sketch9.AttachmentOffset = App.Placement(Vector(0, 0, 5), App.Rotation())
sketch9.addGeometry([
    Part.LineSegment(Vector(0, 134, 0), Vector(0, 20, 0)),
    Part.LineSegment(Vector(0, 20, 0), Vector(10, 20, 0)),
    Part.LineSegment(Vector(10, 20, 0), Vector(10, 134, 0)),
    Part.LineSegment(Vector(10, 134, 0), Vector(0, 134, 0)),
], False)
sketch9.addConstraint([
    Sketcher.Constraint("Coincident", 0, 2, 1, 1),
    Sketcher.Constraint("Coincident", 1, 2, 2, 1),
    Sketcher.Constraint("Coincident", 2, 2, 3, 1),
    Sketcher.Constraint("Coincident", 3, 2, 0, 1),
    Sketcher.Constraint("Vertical", 0),
    Sketcher.Constraint("Horizontal", 1),
    Sketcher.Constraint("Vertical", 2),
    Sketcher.Constraint("Horizontal", 3),
    Sketcher.Constraint("PointOnObject", 0, 2, -2),
    Sketcher.Constraint("DistanceX", 1, 1, 1, 2, Q("10 mm")),
    Sketcher.Constraint("DistanceY", -1, 1, 0, 2, Q("20 mm")),
    Sketcher.Constraint("DistanceY", 0, 2, 0, 1, Q("114.036005 mm")),
])
sketch9.setExpression("Constraints[9]", "Params.sketch9_width")
pocket8 = doc.addObject("PartDesign::Pocket", "Pocket007")
body.addObject(pocket8)
pocket8.Profile = sketch9
pocket8.Type = "ThroughAll"

sketch10 = doc.addObject("Sketcher::SketchObject", "Sketch009")
body.addObject(sketch10)
sketch10.AttachmentSupport = (doc.XY_Plane, [""])
sketch10.MapMode = "FlatFace"
sketch10.AttachmentOffset = App.Placement(Vector(0, 0, 5), App.Rotation())
sketch10.addGeometry([
    Part.LineSegment(Vector(5, 45, 0), Vector(5, 30, 0)),
    Part.LineSegment(Vector(5, 30, 0), Vector(10, 30, 0)),
    Part.LineSegment(Vector(10, 30, 0), Vector(10, 45, 0)),
    Part.LineSegment(Vector(10, 45, 0), Vector(5, 45, 0)),
    Part.LineSegment(Vector(5, 75, 0), Vector(5, 60, 0)),
    Part.LineSegment(Vector(5, 60, 0), Vector(10, 60, 0)),
    Part.LineSegment(Vector(10, 60, 0), Vector(10, 75, 0)),
    Part.LineSegment(Vector(10, 75, 0), Vector(5, 75, 0)),
], False)
sketch10.addConstraint([
    Sketcher.Constraint("Coincident", 0, 2, 1, 1),
    Sketcher.Constraint("Coincident", 1, 2, 2, 1),
    Sketcher.Constraint("Coincident", 2, 2, 3, 1),
    Sketcher.Constraint("Coincident", 3, 2, 0, 1),
    Sketcher.Constraint("Coincident", 4, 2, 5, 1),
    Sketcher.Constraint("Coincident", 5, 2, 6, 1),
    Sketcher.Constraint("Coincident", 6, 2, 7, 1),
    Sketcher.Constraint("Coincident", 7, 2, 4, 1),
    Sketcher.Constraint("Vertical", 0),
    Sketcher.Constraint("Horizontal", 1),
    Sketcher.Constraint("Vertical", 2),
    Sketcher.Constraint("Horizontal", 3),
    Sketcher.Constraint("Vertical", 4),
    Sketcher.Constraint("Horizontal", 5),
    Sketcher.Constraint("Vertical", 6),
    Sketcher.Constraint("Horizontal", 7),
    Sketcher.Constraint("Vertical", 3, 2, 4, 2),
    Sketcher.Constraint("Vertical", 2, 2, 5, 2),
    Sketcher.Constraint("Equal", 2, 4),
    Sketcher.Constraint("DistanceX", 1, 1, 1, 2, Q("5 mm")),
    Sketcher.Constraint("DistanceY", 0, 2, 0, 1, Q("15 mm")),
    Sketcher.Constraint("DistanceX", -1, 1, 0, 2, Q("5 mm")),
    Sketcher.Constraint("DistanceY", -1, 1, 0, 2, Q("30 mm")),
    Sketcher.Constraint("DistanceY", -1, 1, 4, 2, Q("60 mm")),
])
sketch10.setExpression("Constraints[19]", "Params.sketch10_width")
sketch10.setExpression("Constraints[20]", "Params.sketch10_height")
pad2 = doc.addObject("PartDesign::Pad", "Pad001")
body.addObject(pad2)
pad2.Profile = sketch10
pad2.setExpression("Length", "Params.pad2_length")
pad2.Reversed = True

sketch11 = doc.addObject("Sketcher::SketchObject", "Sketch010")
body.addObject(sketch11)
sketch11.AttachmentSupport = (doc.XY_Plane, [""])
sketch11.MapMode = "FlatFace"
sketch11.AttachmentOffset = App.Placement(Vector(0, 0, 5), App.Rotation())
sketch11.addGeometry([
    Part.LineSegment(Vector(35.5, 86.4, 0), Vector(34.6, 91.3, 0)),
    Part.LineSegment(Vector(34.6, 91.3, 0), Vector(19.8, 88.6, 0)),
    Part.LineSegment(Vector(19.8, 88.6, 0), Vector(20.7, 83.7, 0)),
    Part.LineSegment(Vector(20.7, 83.7, 0), Vector(35.5, 86.4, 0)),
    Part.LineSegment(Vector(54.3, 94.9, 0), Vector(55.2, 89.9, 0)),
    Part.LineSegment(Vector(55.2, 89.9, 0), Vector(69.9, 92.6, 0)),
    Part.LineSegment(Vector(69.9, 92.6, 0), Vector(69, 97.6, 0)),
    Part.LineSegment(Vector(69, 97.6, 0), Vector(54.3, 94.9, 0)),
    Part.LineSegment(Vector(88.7, 101.1, 0), Vector(89.6, 96.2, 0)),
    Part.LineSegment(Vector(89.6, 96.2, 0), Vector(104.4, 98.9, 0)),
    Part.LineSegment(Vector(104.4, 98.9, 0), Vector(103.5, 103.8, 0)),
    Part.LineSegment(Vector(103.5, 103.8, 0), Vector(88.7, 101.1, 0)),
], False)
sketch11.addConstraint([
    Sketcher.Constraint("Coincident", 0, 2, 1, 1),
    Sketcher.Constraint("Coincident", 1, 2, 2, 1),
    Sketcher.Constraint("Coincident", 2, 2, 3, 1),
    Sketcher.Constraint("Coincident", 3, 2, 0, 1),
    Sketcher.Constraint("Coincident", 4, 2, 5, 1),
    Sketcher.Constraint("Coincident", 5, 2, 6, 1),
    Sketcher.Constraint("Coincident", 6, 2, 7, 1),
    Sketcher.Constraint("Coincident", 7, 2, 4, 1),
    Sketcher.Constraint("Coincident", 8, 2, 9, 1),
    Sketcher.Constraint("Coincident", 9, 2, 10, 1),
    Sketcher.Constraint("Coincident", 10, 2, 11, 1),
    Sketcher.Constraint("Coincident", 11, 2, 8, 1),
    Sketcher.Constraint("Perpendicular", 0, 1),
    Sketcher.Constraint("Perpendicular", 1, 2),
    Sketcher.Constraint("Perpendicular", 2, 3),
    Sketcher.Constraint("Perpendicular", 3, 4),
    Sketcher.Constraint("Perpendicular", 4, 5),
    Sketcher.Constraint("Perpendicular", 5, 6),
    Sketcher.Constraint("Perpendicular", 6, 7),
    Sketcher.Constraint("Perpendicular", 7, 8),
    Sketcher.Constraint("Perpendicular", 8, 9),
    Sketcher.Constraint("Perpendicular", 9, 10),
    Sketcher.Constraint("Perpendicular", 10, 11),
    Sketcher.Constraint("Equal", 2, 4),
    Sketcher.Constraint("Equal", 3, 5),
    Sketcher.Constraint("Equal", 6, 8),
    Sketcher.Constraint("Equal", 7, 9),
    Sketcher.Constraint("Distance", 0, Q("5 mm")),
    Sketcher.Constraint("Distance", 1, Q("15 mm")),
    Sketcher.Constraint("DistanceX", -1, 1, 1, 2, Q("19.838699 mm")),
    Sketcher.Constraint("DistanceY", -1, 1, 10, 2, Q("103.812298 mm")),
    Sketcher.Constraint("DistanceX", 3, 2, 4, 2, Q("19.677398 mm")),
    Sketcher.Constraint("DistanceX", 5, 2, 8, 2, Q("19.677398 mm")),
    Sketcher.Constraint("DistanceY", 3, 2, 8, 2, Q("9.838699 mm")),
    Sketcher.Constraint("DistanceY", -1, 1, 3, 2, Q("86.370968 mm")),
    Sketcher.Constraint("DistanceY", -1, 1, 5, 2, Q("92.631959 mm")),
])
sketch11.setExpression("Constraints[27]", "Params.sketch11_length")
sketch11.setExpression("Constraints[28]", "Params.sketch11_length2")
pocket9 = doc.addObject("PartDesign::Pocket", "Pocket008")
body.addObject(pocket9)
pocket9.Profile = sketch11
pocket9.Type = "ThroughAll"
doc.recompute()

fillet = doc.addObject("PartDesign::Fillet", "Fillet")
body.addObject(fillet)
fillet.Base = (pocket9, edges_at(pocket9, [
    (312.5, 60, 2.5),
    (222.5, 60, 2.5),
    (132.5, 60, 2.5),
    (42.5, 60, 2.5),
]))
fillet.setExpression("Radius", "Params.fillet_radius")

sketch12 = doc.addObject("Sketcher::SketchObject", "Sketch011")
body.addObject(sketch12)
sketch12.AttachmentSupport = (doc.XY_Plane, [""])
sketch12.MapMode = "FlatFace"
sketch12.AttachmentOffset = App.Placement(Vector(0, 0, 5), App.Rotation())
sketch12.addGeometry([
    Part.LineSegment(Vector(33.52, 5, 0), Vector(33.52, 5.36, 0)),
    Part.LineSegment(Vector(33.52, 5.36, 0), Vector(34.8, 19.44, 0)),
    Part.ArcOfCircle(Part.Circle(Vector(83.59, 15, 0), Vector(0, 0, 1), 49), math.radians(90), math.radians(175)),
    Part.LineSegment(Vector(83.59, 64, 0), Vector(91.41, 64, 0)),
    Part.ArcOfCircle(Part.Circle(Vector(91.41, 15, 0), Vector(0, 0, 1), 49), math.radians(5), math.radians(90)),
    Part.LineSegment(Vector(140.2, 19.44, 0), Vector(141.48, 5.36, 0)),
    Part.LineSegment(Vector(141.48, 5.36, 0), Vector(141.48, 5, 0)),
    Part.LineSegment(Vector(141.48, 5, 0), Vector(162.5, 0, 0)),
    Part.LineSegment(Vector(162.5, 0, 0), Vector(192.5, 0, 0)),
    Part.LineSegment(Vector(192.5, 0, 0), Vector(217.5, 5, 0)),
    Part.LineSegment(Vector(217.5, 5, 0), Vector(317.5, 5, 0)),
    Part.LineSegment(Vector(317.5, 5, 0), Vector(331.25, 0, 0)),
    Part.LineSegment(Vector(331.25, 0, 0), Vector(341.25, 0, 0)),
    Part.LineSegment(Vector(341.25, 0, 0), Vector(355, 5, 0)),
    Part.LineSegment(Vector(355, 5, 0), Vector(355, 172, 0)),
    Part.LineSegment(Vector(355, 172, 0), Vector(327.5, 175, 0)),
    Part.LineSegment(Vector(327.5, 175, 0), Vector(152.5, 175, 0)),
    Part.LineSegment(Vector(152.5, 175, 0), Vector(124.36, 172, 0)),
    Part.LineSegment(Vector(124.36, 172, 0), Vector(88.71, 101.13, 0)),
    Part.LineSegment(Vector(88.71, 101.13, 0), Vector(10, 86.82, 0)),
    Part.LineSegment(Vector(10, 86.82, 0), Vector(5, 75, 0)),
    Part.LineSegment(Vector(5, 75, 0), Vector(0, 20, 0)),
    Part.LineSegment(Vector(0, 20, 0), Vector(0, 5, 0)),
    Part.LineSegment(Vector(0, 5, 0), Vector(13.75, 0, 0)),
    Part.LineSegment(Vector(13.75, 0, 0), Vector(23.75, 0, 0)),
    Part.LineSegment(Vector(23.75, 0, 0), Vector(33.52, 5, 0)),
], False)
sketch12.addConstraint([
    Sketcher.Constraint("Coincident", 0, 2, 1, 1),
    Sketcher.Constraint("Tangent", 1, 2, 2, 2),
    Sketcher.Constraint("Tangent", 2, 1, 3, 1),
    Sketcher.Constraint("Tangent", 3, 2, 4, 2),
    Sketcher.Constraint("Tangent", 4, 1, 5, 1),
    Sketcher.Constraint("Coincident", 5, 2, 6, 1),
    Sketcher.Constraint("Coincident", 6, 2, 7, 1),
    Sketcher.Constraint("Coincident", 7, 2, 8, 1),
    Sketcher.Constraint("Coincident", 8, 2, 9, 1),
    Sketcher.Constraint("Coincident", 9, 2, 10, 1),
    Sketcher.Constraint("Coincident", 10, 2, 11, 1),
    Sketcher.Constraint("Coincident", 11, 2, 12, 1),
    Sketcher.Constraint("Coincident", 12, 2, 13, 1),
    Sketcher.Constraint("Coincident", 13, 2, 14, 1),
    Sketcher.Constraint("Coincident", 14, 2, 15, 1),
    Sketcher.Constraint("Coincident", 15, 2, 16, 1),
    Sketcher.Constraint("Coincident", 16, 2, 17, 1),
    Sketcher.Constraint("Coincident", 17, 2, 18, 1),
    Sketcher.Constraint("Coincident", 18, 2, 19, 1),
    Sketcher.Constraint("Coincident", 19, 2, 20, 1),
    Sketcher.Constraint("Coincident", 20, 2, 21, 1),
    Sketcher.Constraint("Coincident", 21, 2, 22, 1),
    Sketcher.Constraint("Coincident", 22, 2, 23, 1),
    Sketcher.Constraint("Coincident", 23, 2, 24, 1),
    Sketcher.Constraint("Coincident", 24, 2, 25, 1),
    Sketcher.Constraint("Coincident", 25, 2, 0, 1),
    Sketcher.Constraint("Vertical", 0),
    Sketcher.Constraint("Horizontal", 3),
    Sketcher.Constraint("Vertical", 6),
    Sketcher.Constraint("Horizontal", 8),
    Sketcher.Constraint("Horizontal", 10),
    Sketcher.Constraint("Horizontal", 12),
    Sketcher.Constraint("Vertical", 14),
    Sketcher.Constraint("Horizontal", 16),
    Sketcher.Constraint("Vertical", 22),
    Sketcher.Constraint("Horizontal", 24),
    Sketcher.Constraint("Equal", 2, 4),
    Sketcher.Constraint("PointOnObject", 7, 2, -1),
    Sketcher.Constraint("PointOnObject", 11, 2, -1),
    Sketcher.Constraint("PointOnObject", 21, 2, -2),
    Sketcher.Constraint("PointOnObject", 23, 2, -1),
    Sketcher.Constraint("Parallel", 1, 21),
    Sketcher.Constraint("Parallel", 11, 23),
    Sketcher.Constraint("Horizontal", 1, 2, 4, 1),
    Sketcher.Constraint("Horizontal", 0, 2, 5, 2),
    Sketcher.Constraint("Horizontal", 6, 2, 9, 2),
    Sketcher.Constraint("Horizontal", 10, 2, 13, 2),
    Sketcher.Constraint("Horizontal", 14, 2, 17, 2),
    Sketcher.Constraint("Horizontal", 13, 2, 22, 2),
    Sketcher.Constraint("Horizontal", 22, 2, 25, 2),
    Sketcher.Constraint("Equal", 12, 24),
    Sketcher.Constraint("Equal", 11, 13),
    Sketcher.Constraint("Radius", 2, Q("49 mm")),
    Sketcher.Constraint("DistanceX", 8, 1, 8, 2, Q("30 mm")),
    Sketcher.Constraint("DistanceX", 10, 1, 10, 2, Q("100 mm")),
    Sketcher.Constraint("DistanceX", 12, 1, 12, 2, Q("10 mm")),
    Sketcher.Constraint("DistanceX", 16, 2, 16, 1, Q("175 mm")),
    Sketcher.Constraint("DistanceY", 14, 1, 14, 2, Q("167 mm")),
    Sketcher.Constraint("DistanceY", 22, 2, 22, 1, Q("15 mm")),
    Sketcher.Constraint("Distance", 19, Q("80 mm")),
    Sketcher.Constraint("DistanceY", -1, 1, 2, 3, Q("15 mm")),
    Sketcher.Constraint("DistanceY", -1, 1, 6, 2, Q("5 mm")),
    Sketcher.Constraint("DistanceX", -1, 1, 13, 2, Q("355 mm")),
    Sketcher.Constraint("DistanceY", -1, 1, 15, 2, Q("175 mm")),
    Sketcher.Constraint("DistanceX", -1, 1, 19, 2, Q("10 mm")),
    Sketcher.Constraint("DistanceX", -1, 1, 20, 2, Q("5 mm")),
    Sketcher.Constraint("DistanceY", -1, 1, 20, 2, Q("75 mm")),
    Sketcher.Constraint("DistanceX", 8, 2, 9, 2, Q("25 mm")),
    Sketcher.Constraint("DistanceX", 10, 2, 15, 2, Q("10 mm")),
    Sketcher.Constraint("DistanceX", -1, 1, 7, 2, Q("162.5 mm")),
    Sketcher.Constraint("DistanceX", 3, 2, 17, 2, Q("32.951802 mm")),
    Sketcher.Constraint("Distance", 18, Q("79.33123 mm")),
    Sketcher.Constraint("Distance", 20, Q("12.832358 mm")),
    Sketcher.Constraint("DistanceX", 3, 1, 3, 2, Q("7.810683 mm")),
    Sketcher.Constraint("DistanceY", 0, 1, 0, 2, Q("0.362143 mm")),
    Sketcher.Constraint("DistanceX", -1, 1, 2, 3, Q("83.594659 mm")),
])
sketch12.setExpression("Constraints[52]", "Params.sketch12_radius")
sketch12.setExpression("Constraints[53]", "Params.sketch12_width")
sketch12.setExpression("Constraints[54]", "Params.sketch12_width2")
sketch12.setExpression("Constraints[55]", "Params.sketch12_width3")
sketch12.setExpression("Constraints[56]", "Params.sketch12_width4")
pocket10 = doc.addObject("PartDesign::Pocket", "Pocket009")
body.addObject(pocket10)
pocket10.Profile = sketch12
pocket10.Type = "ThroughAll"

doc.recompute()
